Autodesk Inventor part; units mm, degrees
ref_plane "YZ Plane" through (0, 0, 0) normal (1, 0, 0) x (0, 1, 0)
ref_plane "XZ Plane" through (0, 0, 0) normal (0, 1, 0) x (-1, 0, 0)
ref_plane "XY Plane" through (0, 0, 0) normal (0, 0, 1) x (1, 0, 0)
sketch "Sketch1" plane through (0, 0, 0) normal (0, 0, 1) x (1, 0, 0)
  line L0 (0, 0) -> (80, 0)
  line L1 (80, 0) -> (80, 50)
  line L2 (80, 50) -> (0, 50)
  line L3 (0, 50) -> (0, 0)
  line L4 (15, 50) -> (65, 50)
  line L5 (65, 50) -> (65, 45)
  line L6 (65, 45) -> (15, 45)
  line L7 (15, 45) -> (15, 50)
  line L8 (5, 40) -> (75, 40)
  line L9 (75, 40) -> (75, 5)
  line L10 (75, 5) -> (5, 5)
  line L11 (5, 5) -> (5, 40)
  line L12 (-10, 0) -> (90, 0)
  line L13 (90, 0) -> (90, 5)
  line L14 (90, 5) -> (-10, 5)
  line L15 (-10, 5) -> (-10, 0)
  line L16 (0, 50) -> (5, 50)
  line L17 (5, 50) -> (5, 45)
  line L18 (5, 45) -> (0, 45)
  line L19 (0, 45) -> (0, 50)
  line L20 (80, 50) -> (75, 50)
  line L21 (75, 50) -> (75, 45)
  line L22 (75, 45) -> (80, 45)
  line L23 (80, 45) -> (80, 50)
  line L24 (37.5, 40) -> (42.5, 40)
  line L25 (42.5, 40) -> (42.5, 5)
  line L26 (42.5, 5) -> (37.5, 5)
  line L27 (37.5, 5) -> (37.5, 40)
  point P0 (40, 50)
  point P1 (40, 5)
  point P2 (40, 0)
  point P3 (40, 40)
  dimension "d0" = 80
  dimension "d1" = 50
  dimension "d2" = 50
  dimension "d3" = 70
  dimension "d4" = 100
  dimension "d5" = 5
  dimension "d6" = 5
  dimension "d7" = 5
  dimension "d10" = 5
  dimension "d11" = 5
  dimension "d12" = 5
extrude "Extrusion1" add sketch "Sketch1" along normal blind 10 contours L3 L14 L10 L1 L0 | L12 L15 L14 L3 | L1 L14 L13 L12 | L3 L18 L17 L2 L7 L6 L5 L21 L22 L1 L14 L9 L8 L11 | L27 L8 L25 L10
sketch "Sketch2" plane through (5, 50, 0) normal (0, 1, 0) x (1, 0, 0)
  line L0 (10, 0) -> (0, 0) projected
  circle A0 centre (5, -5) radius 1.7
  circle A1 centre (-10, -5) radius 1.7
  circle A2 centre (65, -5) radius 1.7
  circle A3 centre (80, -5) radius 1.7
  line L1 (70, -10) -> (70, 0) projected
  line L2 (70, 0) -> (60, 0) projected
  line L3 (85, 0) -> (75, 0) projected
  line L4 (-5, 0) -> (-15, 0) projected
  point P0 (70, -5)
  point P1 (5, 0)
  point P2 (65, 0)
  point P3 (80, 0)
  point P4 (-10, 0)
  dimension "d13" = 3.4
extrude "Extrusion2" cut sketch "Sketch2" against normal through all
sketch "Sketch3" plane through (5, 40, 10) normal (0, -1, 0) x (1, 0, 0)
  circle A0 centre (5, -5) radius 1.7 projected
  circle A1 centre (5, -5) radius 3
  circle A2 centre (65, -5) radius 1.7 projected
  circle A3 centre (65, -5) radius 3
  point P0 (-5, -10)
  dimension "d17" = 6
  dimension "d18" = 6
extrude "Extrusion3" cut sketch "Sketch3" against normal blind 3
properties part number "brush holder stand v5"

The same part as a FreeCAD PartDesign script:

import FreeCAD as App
import Part
import Sketcher

V = App.Vector
Q = App.Units.Quantity

doc = App.newDocument("Part")
params = doc.addObject("Spreadsheet::Sheet", "Params")
for row, (alias, value) in enumerate([
    ("sketch1_width", "5 mm"),
    ("sketch1_width2", "50 mm"),
    ("sketch1_width3", "100 mm"),
    ("pad1_length", "10 mm"),
    ("sketch2_diameter", "3.4 mm"),
    ("sketch3_diameter", "6 mm"),
    ("sketch3_diameter2", "3.4 mm"),
    ("pocket2_length", "3 mm"),
], start=1):
    params.set(f"A{row}", alias)
    params.set(f"B{row}", "=" + value)
    params.setAlias(f"B{row}", alias)

body = doc.addObject("PartDesign::Body", "Body")

sketch1 = doc.addObject("Sketcher::SketchObject", "Sketch")
body.addObject(sketch1)
sketch1.AttachmentSupport = (doc.XY_Plane, [""])
sketch1.MapMode = "FlatFace"
sketch1.addGeometry([
    Part.LineSegment(V(90, 0, 0), V(90, 5, 0)),
    Part.LineSegment(V(90, 5, 0), V(80, 5, 0)),
    Part.LineSegment(V(80, 5, 0), V(80, 45, 0)),
    Part.LineSegment(V(80, 45, 0), V(75, 45, 0)),
    Part.LineSegment(V(75, 45, 0), V(75, 50, 0)),
    Part.LineSegment(V(75, 50, 0), V(65, 50, 0)),
    Part.LineSegment(V(65, 50, 0), V(65, 45, 0)),
    Part.LineSegment(V(65, 45, 0), V(15, 45, 0)),
    Part.LineSegment(V(15, 45, 0), V(15, 50, 0)),
    Part.LineSegment(V(15, 50, 0), V(5, 50, 0)),
    Part.LineSegment(V(5, 50, 0), V(5, 45, 0)),
    Part.LineSegment(V(5, 45, 0), V(0, 45, 0)),
    Part.LineSegment(V(0, 45, 0), V(0, 5, 0)),
    Part.LineSegment(V(0, 5, 0), V(-10, 5, 0)),
    Part.LineSegment(V(-10, 5, 0), V(-10, 0, 0)),
    Part.LineSegment(V(-10, 0, 0), V(90, 0, 0)),
    Part.LineSegment(V(38, 5, 0), V(5, 5, 0)),
    Part.LineSegment(V(5, 5, 0), V(5, 40, 0)),
    Part.LineSegment(V(5, 40, 0), V(38, 40, 0)),
    Part.LineSegment(V(38, 40, 0), V(38, 5, 0)),
    Part.LineSegment(V(75, 5, 0), V(42, 5, 0)),
    Part.LineSegment(V(42, 5, 0), V(42, 40, 0)),
    Part.LineSegment(V(42, 40, 0), V(75, 40, 0)),
    Part.LineSegment(V(75, 40, 0), V(75, 5, 0)),
], False)
sketch1.addConstraint([
    Sketcher.Constraint("Coincident", 0, 2, 1, 1),
    Sketcher.Constraint("Coincident", 1, 2, 2, 1),
    Sketcher.Constraint("Coincident", 2, 2, 3, 1),
    Sketcher.Constraint("Coincident", 3, 2, 4, 1),
    Sketcher.Constraint("Coincident", 4, 2, 5, 1),
    Sketcher.Constraint("Coincident", 5, 2, 6, 1),
    Sketcher.Constraint("Coincident", 6, 2, 7, 1),
    Sketcher.Constraint("Coincident", 7, 2, 8, 1),
    Sketcher.Constraint("Coincident", 8, 2, 9, 1),
    Sketcher.Constraint("Coincident", 9, 2, 10, 1),
    Sketcher.Constraint("Coincident", 10, 2, 11, 1),
    Sketcher.Constraint("Coincident", 11, 2, 12, 1),
    Sketcher.Constraint("Coincident", 12, 2, 13, 1),
    Sketcher.Constraint("Coincident", 13, 2, 14, 1),
    Sketcher.Constraint("Coincident", 14, 2, 15, 1),
    Sketcher.Constraint("Coincident", 15, 2, 0, 1),
    Sketcher.Constraint("Coincident", 16, 2, 17, 1),
    Sketcher.Constraint("Coincident", 17, 2, 18, 1),
    Sketcher.Constraint("Coincident", 18, 2, 19, 1),
    Sketcher.Constraint("Coincident", 19, 2, 16, 1),
    Sketcher.Constraint("Coincident", 20, 2, 21, 1),
    Sketcher.Constraint("Coincident", 21, 2, 22, 1),
    Sketcher.Constraint("Coincident", 22, 2, 23, 1),
    Sketcher.Constraint("Coincident", 23, 2, 20, 1),
    Sketcher.Constraint("Vertical", 0),
    Sketcher.Constraint("Horizontal", 1),
    Sketcher.Constraint("Vertical", 2),
    Sketcher.Constraint("Horizontal", 3),
    Sketcher.Constraint("Vertical", 4),
    Sketcher.Constraint("Horizontal", 5),
    Sketcher.Constraint("Vertical", 6),
    Sketcher.Constraint("Horizontal", 7),
    Sketcher.Constraint("Vertical", 8),
    Sketcher.Constraint("Horizontal", 9),
    Sketcher.Constraint("Vertical", 10),
    Sketcher.Constraint("Horizontal", 11),
    Sketcher.Constraint("Vertical", 12),
    Sketcher.Constraint("Horizontal", 13),
    Sketcher.Constraint("Vertical", 14),
    Sketcher.Constraint("Horizontal", 15),
    Sketcher.Constraint("Horizontal", 16),
    Sketcher.Constraint("Vertical", 17),
    Sketcher.Constraint("Horizontal", 18),
    Sketcher.Constraint("Vertical", 19),
    Sketcher.Constraint("Horizontal", 20),
    Sketcher.Constraint("Vertical", 21),
    Sketcher.Constraint("Horizontal", 22),
    Sketcher.Constraint("Vertical", 23),
    Sketcher.Constraint("PointOnObject", 11, 2, -2),
    Sketcher.Constraint("PointOnObject", 14, 2, -1),
    Sketcher.Constraint("Horizontal", 3, 2, 6, 2),
    Sketcher.Constraint("Horizontal", 5, 2, 8, 2),
    Sketcher.Constraint("Horizontal", 7, 2, 10, 2),
    Sketcher.Constraint("Horizontal", 1, 2, 12, 2),
    Sketcher.Constraint("Horizontal", 13, 2, 16, 2),
    Sketcher.Constraint("Horizontal", 19, 2, 20, 2),
    Sketcher.Constraint("Horizontal", 18, 2, 21, 2),
    Sketcher.Constraint("Vertical", 10, 2, 16, 2),
    Sketcher.Constraint("Vertical", 4, 2, 22, 2),
    Sketcher.Constraint("Equal", 1, 5),
    Sketcher.Constraint("Equal", 5, 9),
    Sketcher.Constraint("Equal", 3, 11),
    Sketcher.Constraint("Equal", 9, 13),
    Sketcher.Constraint("Equal", 18, 20),
    Sketcher.Constraint("Equal", 11, 0),
    Sketcher.Constraint("Equal", 0, 4),
    Sketcher.Constraint("DistanceX", 3, 2, 3, 1, Q("5 mm")),
    Sketcher.Constraint("DistanceX", 7, 2, 7, 1, Q("50 mm")),
    Sketcher.Constraint("DistanceX", 15, 1, 15, 2, Q("100 mm")),
    Sketcher.Constraint("DistanceY", -1, 1, 4, 2, Q("50 mm")),
    Sketcher.Constraint("DistanceY", 17, 2, 10, 2, Q("5 mm")),
    Sketcher.Constraint("DistanceX", 19, 2, 20, 2, Q("5 mm")),
])
sketch1.setExpression("Constraints[66]", "Params.sketch1_width")
sketch1.setExpression("Constraints[67]", "Params.sketch1_width2")
sketch1.setExpression("Constraints[68]", "Params.sketch1_width3")
pad1 = doc.addObject("PartDesign::Pad", "Pad")
body.addObject(pad1)
pad1.Profile = sketch1
pad1.setExpression("Length", "Params.pad1_length")

sketch2 = doc.addObject("Sketcher::SketchObject", "Sketch001")
body.addObject(sketch2)
sketch2.AttachmentSupport = (doc.XZ_Plane, [""])
sketch2.MapMode = "FlatFace"
sketch2.AttachmentOffset = App.Placement(V(0, 0, -50), App.Rotation())
sketch2.addGeometry([
    Part.Circle(V(10, 5, 0), V(0, 0, 1), 1.7),
    Part.Circle(V(-5, 5, 0), V(0, 0, 1), 1.7),
    Part.Circle(V(70, 5, 0), V(0, 0, 1), 1.7),
    Part.Circle(V(85, 5, 0), V(0, 0, 1), 1.7),
], False)
sketch2.addConstraint([
    Sketcher.Constraint("Equal", 0, 1),
    Sketcher.Constraint("Equal", 1, 2),
    Sketcher.Constraint("Equal", 2, 3),
    Sketcher.Constraint("Horizontal", 0, 3, 1, 3),
    Sketcher.Constraint("Horizontal", 1, 3, 2, 3),
    Sketcher.Constraint("Horizontal", 2, 3, 3, 3),
    Sketcher.Constraint("Diameter", 0, Q("3.4 mm")),
    Sketcher.Constraint("DistanceX", -1, 1, 0, 3, Q("10 mm")),
    Sketcher.Constraint("DistanceY", -1, 1, 0, 3, Q("5 mm")),
    Sketcher.Constraint("DistanceX", 1, 3, -1, 1, Q("5 mm")),
    Sketcher.Constraint("DistanceX", -1, 1, 2, 3, Q("70 mm")),
    Sketcher.Constraint("DistanceX", -1, 1, 3, 3, Q("85 mm")),
])
sketch2.setExpression("Constraints[6]", "Params.sketch2_diameter")
pocket1 = doc.addObject("PartDesign::Pocket", "Pocket")
body.addObject(pocket1)
pocket1.Profile = sketch2
pocket1.Type = "ThroughAll"
pocket1.Reversed = True

sketch3 = doc.addObject("Sketcher::SketchObject", "Sketch002")
body.addObject(sketch3)
sketch3.AttachmentSupport = (doc.XZ_Plane, [""])
sketch3.MapMode = "FlatFace"
sketch3.AttachmentOffset = App.Placement(V(0, 0, -40), App.Rotation())
sketch3.addGeometry([
    Part.Circle(V(10, 5, 0), V(0, 0, 1), 3),
    Part.Circle(V(10, 5, 0), V(0, 0, 1), 1.7),
    Part.Circle(V(70, 5, 0), V(0, 0, 1), 3),
    Part.Circle(V(70, 5, 0), V(0, 0, 1), 1.7),
], False)
sketch3.addConstraint([
    Sketcher.Constraint("Coincident", 1, 3, 0, 3),
    Sketcher.Constraint("Coincident", 3, 3, 2, 3),
    Sketcher.Constraint("Equal", 0, 2),
    Sketcher.Constraint("Equal", 1, 3),
    Sketcher.Constraint("Horizontal", 1, 3, 2, 3),
    Sketcher.Constraint("Diameter", 0, Q("6 mm")),
    Sketcher.Constraint("Diameter", 1, Q("3.4 mm")),
    Sketcher.Constraint("DistanceX", -1, 1, 0, 3, Q("10 mm")),
    Sketcher.Constraint("DistanceY", -1, 1, 0, 3, Q("5 mm")),
    Sketcher.Constraint("DistanceX", -1, 1, 2, 3, Q("70 mm")),
])
sketch3.setExpression("Constraints[5]", "Params.sketch3_diameter")
sketch3.setExpression("Constraints[6]", "Params.sketch3_diameter2")
pocket2 = doc.addObject("PartDesign::Pocket", "Pocket001")
body.addObject(pocket2)
pocket2.Profile = sketch3
pocket2.setExpression("Length", "Params.pocket2_length")

doc.recompute()
